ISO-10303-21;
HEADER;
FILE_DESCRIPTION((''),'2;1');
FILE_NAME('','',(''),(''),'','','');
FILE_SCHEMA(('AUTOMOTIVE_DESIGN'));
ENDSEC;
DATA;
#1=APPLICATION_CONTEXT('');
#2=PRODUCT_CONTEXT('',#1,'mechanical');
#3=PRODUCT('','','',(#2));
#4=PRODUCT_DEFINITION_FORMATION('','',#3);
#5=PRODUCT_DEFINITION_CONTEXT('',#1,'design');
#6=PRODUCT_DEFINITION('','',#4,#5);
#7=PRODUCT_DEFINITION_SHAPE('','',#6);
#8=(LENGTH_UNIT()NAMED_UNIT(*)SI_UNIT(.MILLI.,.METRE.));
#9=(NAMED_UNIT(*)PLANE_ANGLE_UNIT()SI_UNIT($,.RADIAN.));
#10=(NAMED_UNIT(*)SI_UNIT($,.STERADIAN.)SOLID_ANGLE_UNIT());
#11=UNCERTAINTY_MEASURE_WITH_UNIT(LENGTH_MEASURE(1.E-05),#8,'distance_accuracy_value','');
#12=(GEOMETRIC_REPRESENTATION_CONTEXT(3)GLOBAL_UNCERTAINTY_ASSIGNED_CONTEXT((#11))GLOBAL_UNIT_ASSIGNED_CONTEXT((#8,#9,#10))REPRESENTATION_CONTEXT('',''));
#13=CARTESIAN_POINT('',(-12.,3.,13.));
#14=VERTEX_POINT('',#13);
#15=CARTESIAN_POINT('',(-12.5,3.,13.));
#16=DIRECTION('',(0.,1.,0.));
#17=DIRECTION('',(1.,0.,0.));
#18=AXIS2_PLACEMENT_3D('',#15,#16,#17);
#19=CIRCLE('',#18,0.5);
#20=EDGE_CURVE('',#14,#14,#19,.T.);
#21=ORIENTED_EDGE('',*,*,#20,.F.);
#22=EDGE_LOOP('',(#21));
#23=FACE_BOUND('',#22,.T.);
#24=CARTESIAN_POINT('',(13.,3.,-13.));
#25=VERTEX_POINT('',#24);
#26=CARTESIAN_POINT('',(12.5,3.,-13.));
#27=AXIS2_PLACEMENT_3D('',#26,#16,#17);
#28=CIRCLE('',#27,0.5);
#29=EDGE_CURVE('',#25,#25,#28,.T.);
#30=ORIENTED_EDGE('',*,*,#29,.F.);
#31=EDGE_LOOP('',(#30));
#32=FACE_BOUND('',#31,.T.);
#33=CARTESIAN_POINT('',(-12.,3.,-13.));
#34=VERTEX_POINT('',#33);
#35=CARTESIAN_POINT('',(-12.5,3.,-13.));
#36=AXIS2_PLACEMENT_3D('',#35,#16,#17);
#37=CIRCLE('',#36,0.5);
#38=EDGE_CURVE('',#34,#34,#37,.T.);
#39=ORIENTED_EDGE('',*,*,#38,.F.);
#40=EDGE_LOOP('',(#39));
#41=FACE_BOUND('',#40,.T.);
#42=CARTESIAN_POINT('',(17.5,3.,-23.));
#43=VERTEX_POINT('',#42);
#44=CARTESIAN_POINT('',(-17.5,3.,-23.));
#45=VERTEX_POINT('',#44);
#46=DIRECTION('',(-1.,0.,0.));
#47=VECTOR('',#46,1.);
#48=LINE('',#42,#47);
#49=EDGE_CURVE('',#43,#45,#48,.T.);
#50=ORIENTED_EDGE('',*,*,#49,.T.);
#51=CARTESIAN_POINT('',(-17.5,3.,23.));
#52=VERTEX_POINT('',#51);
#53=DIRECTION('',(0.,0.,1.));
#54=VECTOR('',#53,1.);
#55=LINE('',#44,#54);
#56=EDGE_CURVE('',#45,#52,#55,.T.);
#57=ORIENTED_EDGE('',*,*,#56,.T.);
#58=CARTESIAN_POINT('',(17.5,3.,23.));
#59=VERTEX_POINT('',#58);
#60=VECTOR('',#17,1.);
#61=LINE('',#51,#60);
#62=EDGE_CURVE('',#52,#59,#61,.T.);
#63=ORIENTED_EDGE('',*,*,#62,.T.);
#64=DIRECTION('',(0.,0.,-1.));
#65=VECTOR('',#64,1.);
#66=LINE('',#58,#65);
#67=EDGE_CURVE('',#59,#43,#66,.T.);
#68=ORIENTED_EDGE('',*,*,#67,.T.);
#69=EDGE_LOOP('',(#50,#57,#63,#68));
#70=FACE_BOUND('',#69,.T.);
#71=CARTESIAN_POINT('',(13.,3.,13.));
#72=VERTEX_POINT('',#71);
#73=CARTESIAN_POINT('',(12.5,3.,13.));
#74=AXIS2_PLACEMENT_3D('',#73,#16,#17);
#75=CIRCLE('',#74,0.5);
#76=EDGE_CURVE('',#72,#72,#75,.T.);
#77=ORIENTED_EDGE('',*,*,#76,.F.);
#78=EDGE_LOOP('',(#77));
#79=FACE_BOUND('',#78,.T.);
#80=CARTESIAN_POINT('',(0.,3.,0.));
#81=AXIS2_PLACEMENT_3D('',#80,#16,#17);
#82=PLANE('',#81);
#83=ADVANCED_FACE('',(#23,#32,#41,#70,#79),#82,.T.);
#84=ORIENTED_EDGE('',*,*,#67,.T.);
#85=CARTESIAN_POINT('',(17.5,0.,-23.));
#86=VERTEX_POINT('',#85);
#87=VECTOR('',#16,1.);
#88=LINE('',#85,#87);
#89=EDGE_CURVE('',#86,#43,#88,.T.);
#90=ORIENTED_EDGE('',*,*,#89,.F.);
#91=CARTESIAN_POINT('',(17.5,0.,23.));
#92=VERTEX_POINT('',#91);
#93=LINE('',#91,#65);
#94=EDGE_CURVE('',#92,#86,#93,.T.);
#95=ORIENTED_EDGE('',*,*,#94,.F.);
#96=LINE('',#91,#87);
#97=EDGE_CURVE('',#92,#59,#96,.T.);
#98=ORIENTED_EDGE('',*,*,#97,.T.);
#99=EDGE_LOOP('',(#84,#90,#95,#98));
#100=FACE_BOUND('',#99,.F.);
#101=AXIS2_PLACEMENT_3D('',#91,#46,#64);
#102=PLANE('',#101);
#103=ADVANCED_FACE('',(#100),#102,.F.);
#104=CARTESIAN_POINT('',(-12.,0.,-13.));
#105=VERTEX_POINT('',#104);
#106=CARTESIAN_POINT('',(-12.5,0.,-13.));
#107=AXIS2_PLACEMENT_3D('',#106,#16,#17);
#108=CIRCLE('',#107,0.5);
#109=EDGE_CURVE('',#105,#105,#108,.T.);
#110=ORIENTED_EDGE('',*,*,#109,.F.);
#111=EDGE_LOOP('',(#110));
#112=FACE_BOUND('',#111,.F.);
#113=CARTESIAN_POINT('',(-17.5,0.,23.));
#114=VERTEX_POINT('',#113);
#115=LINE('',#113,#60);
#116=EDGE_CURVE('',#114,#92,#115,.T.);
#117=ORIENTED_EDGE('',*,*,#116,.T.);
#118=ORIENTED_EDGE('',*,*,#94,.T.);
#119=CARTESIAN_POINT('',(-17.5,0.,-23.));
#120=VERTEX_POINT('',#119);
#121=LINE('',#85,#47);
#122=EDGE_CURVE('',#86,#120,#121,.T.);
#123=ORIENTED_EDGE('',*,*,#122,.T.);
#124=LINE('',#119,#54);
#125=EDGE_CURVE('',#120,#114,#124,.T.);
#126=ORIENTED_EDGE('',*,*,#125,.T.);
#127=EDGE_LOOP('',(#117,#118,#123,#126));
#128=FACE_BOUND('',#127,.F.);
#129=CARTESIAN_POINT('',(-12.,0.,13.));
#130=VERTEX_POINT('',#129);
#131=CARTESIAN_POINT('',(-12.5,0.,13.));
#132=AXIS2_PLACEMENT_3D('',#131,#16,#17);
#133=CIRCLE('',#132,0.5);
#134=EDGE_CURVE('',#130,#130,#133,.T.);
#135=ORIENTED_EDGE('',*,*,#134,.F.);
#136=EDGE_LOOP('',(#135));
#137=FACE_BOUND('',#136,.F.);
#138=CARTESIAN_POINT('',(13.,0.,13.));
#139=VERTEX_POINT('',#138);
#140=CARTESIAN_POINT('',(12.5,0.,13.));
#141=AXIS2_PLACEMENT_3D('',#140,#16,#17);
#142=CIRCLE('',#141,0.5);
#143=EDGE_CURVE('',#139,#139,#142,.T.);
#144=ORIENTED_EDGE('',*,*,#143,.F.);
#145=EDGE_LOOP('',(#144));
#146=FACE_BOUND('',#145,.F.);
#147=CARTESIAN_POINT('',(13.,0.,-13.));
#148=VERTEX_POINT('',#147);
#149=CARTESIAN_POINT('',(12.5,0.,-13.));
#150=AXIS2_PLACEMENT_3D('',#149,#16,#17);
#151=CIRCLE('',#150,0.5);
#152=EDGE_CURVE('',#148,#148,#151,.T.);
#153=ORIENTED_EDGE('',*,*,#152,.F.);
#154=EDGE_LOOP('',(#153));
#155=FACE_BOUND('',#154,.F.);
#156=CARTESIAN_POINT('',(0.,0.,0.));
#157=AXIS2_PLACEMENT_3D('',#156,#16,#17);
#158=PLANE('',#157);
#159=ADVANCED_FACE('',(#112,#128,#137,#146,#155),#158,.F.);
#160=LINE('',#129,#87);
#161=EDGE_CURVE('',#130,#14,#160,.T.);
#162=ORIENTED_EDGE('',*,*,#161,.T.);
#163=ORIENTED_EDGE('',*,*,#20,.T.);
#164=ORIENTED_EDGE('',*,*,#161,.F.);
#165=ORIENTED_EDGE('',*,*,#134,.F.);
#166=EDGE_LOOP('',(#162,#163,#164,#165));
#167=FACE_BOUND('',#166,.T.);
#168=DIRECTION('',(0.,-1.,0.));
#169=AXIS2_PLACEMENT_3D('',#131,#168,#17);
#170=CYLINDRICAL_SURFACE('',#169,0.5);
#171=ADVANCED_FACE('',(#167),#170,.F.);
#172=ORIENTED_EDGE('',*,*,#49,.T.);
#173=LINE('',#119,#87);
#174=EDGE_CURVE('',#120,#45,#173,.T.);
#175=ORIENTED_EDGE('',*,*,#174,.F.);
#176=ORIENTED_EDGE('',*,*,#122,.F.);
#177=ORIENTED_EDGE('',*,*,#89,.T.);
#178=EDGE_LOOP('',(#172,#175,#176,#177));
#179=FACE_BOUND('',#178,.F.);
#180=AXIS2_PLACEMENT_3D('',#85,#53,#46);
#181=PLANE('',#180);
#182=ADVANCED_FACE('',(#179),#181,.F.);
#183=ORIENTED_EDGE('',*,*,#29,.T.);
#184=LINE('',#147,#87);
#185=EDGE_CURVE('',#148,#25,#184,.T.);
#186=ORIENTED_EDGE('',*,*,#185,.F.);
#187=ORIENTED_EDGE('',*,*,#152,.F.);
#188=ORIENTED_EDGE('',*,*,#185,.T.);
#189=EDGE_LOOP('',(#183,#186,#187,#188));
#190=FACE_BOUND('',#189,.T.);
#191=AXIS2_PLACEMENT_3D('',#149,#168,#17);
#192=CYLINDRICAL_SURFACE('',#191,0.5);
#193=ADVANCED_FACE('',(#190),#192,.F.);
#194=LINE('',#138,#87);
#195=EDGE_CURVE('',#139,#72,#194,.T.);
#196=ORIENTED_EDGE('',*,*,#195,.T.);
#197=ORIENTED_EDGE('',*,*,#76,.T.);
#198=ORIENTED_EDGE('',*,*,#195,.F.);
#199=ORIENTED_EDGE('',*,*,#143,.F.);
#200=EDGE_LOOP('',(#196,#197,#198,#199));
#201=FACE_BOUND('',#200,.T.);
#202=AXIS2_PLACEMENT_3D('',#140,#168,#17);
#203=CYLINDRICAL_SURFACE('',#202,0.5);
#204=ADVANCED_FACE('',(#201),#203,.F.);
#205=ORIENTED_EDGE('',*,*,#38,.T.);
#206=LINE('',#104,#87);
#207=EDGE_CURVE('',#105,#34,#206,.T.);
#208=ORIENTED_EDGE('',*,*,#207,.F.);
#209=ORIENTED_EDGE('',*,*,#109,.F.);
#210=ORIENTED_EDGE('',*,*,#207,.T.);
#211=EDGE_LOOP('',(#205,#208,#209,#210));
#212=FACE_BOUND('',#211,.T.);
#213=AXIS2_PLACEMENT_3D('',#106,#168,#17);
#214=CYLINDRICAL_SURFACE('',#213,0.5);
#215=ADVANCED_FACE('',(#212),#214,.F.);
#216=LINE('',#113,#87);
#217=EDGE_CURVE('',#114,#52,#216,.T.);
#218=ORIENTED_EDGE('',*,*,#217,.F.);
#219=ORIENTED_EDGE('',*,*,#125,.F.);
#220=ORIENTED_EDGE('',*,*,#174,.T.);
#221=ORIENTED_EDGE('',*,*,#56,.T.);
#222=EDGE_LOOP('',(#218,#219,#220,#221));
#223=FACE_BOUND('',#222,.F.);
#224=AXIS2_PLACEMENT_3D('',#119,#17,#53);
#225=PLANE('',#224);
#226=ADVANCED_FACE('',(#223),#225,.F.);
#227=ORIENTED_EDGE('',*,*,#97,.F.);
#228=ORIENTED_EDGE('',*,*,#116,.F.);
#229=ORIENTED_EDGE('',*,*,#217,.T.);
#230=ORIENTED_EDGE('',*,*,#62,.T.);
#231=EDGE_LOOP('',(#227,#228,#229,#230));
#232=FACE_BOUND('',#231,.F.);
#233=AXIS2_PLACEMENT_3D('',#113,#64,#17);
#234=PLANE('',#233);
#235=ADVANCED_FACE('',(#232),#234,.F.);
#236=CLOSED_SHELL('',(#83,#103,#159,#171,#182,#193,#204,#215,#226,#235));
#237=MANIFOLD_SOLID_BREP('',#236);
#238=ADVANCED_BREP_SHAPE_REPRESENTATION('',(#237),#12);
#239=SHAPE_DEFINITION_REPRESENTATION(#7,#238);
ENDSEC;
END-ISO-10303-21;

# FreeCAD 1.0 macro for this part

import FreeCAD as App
import Part
import Sketcher

V = App.Vector
Q = App.Units.Quantity

doc = App.newDocument("Part")
body = doc.addObject("PartDesign::Body", "Body")

# Sketch on XZ plane
sketch1 = body.newObject("Sketcher::SketchObject", "Sketch")
sketch1.AttachmentSupport = (doc.getObject("XZ_Plane"), [""])
sketch1.MapMode = "FlatFace"
sketch1.addGeometry(Part.LineSegment(V(17.5, 23, 0), V(17.5, -23, 0)), False)
sketch1.addGeometry(Part.LineSegment(V(17.5, -23, 0), V(-17.5, -23, 0)), False)
sketch1.addGeometry(Part.LineSegment(V(-17.5, -23, 0), V(-17.5, 23, 0)), False)
sketch1.addGeometry(Part.LineSegment(V(-17.5, 23, 0), V(17.5, 23, 0)), False)
sketch1.addGeometry(Part.Circle(V(-12.5, 13, 0), V(0, 0, 1), 0.5), False)
sketch1.addGeometry(Part.Circle(V(12.5, 13, 0), V(0, 0, 1), 0.5), False)
sketch1.addGeometry(Part.Circle(V(-12.5, -13, 0), V(0, 0, 1), 0.5), False)
sketch1.addGeometry(Part.Circle(V(12.5, -13, 0), V(0, 0, 1), 0.5), False)
sketch1.addConstraint(Sketcher.Constraint("Coincident", 0, 2, 1, 1))
sketch1.addConstraint(Sketcher.Constraint("Coincident", 1, 2, 2, 1))
sketch1.addConstraint(Sketcher.Constraint("Coincident", 2, 2, 3, 1))
sketch1.addConstraint(Sketcher.Constraint("Coincident", 3, 2, 0, 1))
sketch1.addConstraint(Sketcher.Constraint("Vertical", 0))
sketch1.addConstraint(Sketcher.Constraint("Horizontal", 1))
sketch1.addConstraint(Sketcher.Constraint("Vertical", 2))
sketch1.addConstraint(Sketcher.Constraint("Horizontal", 3))
sketch1.addConstraint(Sketcher.Constraint("Equal", 4, 5))
sketch1.addConstraint(Sketcher.Constraint("Equal", 5, 6))
sketch1.addConstraint(Sketcher.Constraint("Equal", 6, 7))
sketch1.addConstraint(Sketcher.Constraint("Symmetric", 5, 3, 6, 3, -1, 1))
sketch1.addConstraint(Sketcher.Constraint("Symmetric", 4, 3, 7, 3, -1, 1))
sketch1.addConstraint(Sketcher.Constraint("Symmetric", 0, 2, 2, 2, -1, 1))
sketch1.addConstraint(Sketcher.Constraint("Symmetric", 4, 3, 5, 3, -2))
sketch1.addConstraint(Sketcher.Constraint("Diameter", 4, Q("1 mm")))
sketch1.addConstraint(Sketcher.Constraint("DistanceX", 1, 2, 1, 1, Q("35 mm")))
sketch1.addConstraint(Sketcher.Constraint("DistanceY", 0, 2, 0, 1, Q("46 mm")))
sketch1.addConstraint(Sketcher.Constraint("DistanceX", 7, 3, 0, 2, Q("5 mm")))
sketch1.addConstraint(Sketcher.Constraint("DistanceY", 0, 2, 7, 3, Q("10 mm")))
pad1 = body.newObject("PartDesign::Pad", "Pad")
pad1.Profile = sketch1
pad1.Length = 3
pad1.Reversed = True

doc.recompute()
